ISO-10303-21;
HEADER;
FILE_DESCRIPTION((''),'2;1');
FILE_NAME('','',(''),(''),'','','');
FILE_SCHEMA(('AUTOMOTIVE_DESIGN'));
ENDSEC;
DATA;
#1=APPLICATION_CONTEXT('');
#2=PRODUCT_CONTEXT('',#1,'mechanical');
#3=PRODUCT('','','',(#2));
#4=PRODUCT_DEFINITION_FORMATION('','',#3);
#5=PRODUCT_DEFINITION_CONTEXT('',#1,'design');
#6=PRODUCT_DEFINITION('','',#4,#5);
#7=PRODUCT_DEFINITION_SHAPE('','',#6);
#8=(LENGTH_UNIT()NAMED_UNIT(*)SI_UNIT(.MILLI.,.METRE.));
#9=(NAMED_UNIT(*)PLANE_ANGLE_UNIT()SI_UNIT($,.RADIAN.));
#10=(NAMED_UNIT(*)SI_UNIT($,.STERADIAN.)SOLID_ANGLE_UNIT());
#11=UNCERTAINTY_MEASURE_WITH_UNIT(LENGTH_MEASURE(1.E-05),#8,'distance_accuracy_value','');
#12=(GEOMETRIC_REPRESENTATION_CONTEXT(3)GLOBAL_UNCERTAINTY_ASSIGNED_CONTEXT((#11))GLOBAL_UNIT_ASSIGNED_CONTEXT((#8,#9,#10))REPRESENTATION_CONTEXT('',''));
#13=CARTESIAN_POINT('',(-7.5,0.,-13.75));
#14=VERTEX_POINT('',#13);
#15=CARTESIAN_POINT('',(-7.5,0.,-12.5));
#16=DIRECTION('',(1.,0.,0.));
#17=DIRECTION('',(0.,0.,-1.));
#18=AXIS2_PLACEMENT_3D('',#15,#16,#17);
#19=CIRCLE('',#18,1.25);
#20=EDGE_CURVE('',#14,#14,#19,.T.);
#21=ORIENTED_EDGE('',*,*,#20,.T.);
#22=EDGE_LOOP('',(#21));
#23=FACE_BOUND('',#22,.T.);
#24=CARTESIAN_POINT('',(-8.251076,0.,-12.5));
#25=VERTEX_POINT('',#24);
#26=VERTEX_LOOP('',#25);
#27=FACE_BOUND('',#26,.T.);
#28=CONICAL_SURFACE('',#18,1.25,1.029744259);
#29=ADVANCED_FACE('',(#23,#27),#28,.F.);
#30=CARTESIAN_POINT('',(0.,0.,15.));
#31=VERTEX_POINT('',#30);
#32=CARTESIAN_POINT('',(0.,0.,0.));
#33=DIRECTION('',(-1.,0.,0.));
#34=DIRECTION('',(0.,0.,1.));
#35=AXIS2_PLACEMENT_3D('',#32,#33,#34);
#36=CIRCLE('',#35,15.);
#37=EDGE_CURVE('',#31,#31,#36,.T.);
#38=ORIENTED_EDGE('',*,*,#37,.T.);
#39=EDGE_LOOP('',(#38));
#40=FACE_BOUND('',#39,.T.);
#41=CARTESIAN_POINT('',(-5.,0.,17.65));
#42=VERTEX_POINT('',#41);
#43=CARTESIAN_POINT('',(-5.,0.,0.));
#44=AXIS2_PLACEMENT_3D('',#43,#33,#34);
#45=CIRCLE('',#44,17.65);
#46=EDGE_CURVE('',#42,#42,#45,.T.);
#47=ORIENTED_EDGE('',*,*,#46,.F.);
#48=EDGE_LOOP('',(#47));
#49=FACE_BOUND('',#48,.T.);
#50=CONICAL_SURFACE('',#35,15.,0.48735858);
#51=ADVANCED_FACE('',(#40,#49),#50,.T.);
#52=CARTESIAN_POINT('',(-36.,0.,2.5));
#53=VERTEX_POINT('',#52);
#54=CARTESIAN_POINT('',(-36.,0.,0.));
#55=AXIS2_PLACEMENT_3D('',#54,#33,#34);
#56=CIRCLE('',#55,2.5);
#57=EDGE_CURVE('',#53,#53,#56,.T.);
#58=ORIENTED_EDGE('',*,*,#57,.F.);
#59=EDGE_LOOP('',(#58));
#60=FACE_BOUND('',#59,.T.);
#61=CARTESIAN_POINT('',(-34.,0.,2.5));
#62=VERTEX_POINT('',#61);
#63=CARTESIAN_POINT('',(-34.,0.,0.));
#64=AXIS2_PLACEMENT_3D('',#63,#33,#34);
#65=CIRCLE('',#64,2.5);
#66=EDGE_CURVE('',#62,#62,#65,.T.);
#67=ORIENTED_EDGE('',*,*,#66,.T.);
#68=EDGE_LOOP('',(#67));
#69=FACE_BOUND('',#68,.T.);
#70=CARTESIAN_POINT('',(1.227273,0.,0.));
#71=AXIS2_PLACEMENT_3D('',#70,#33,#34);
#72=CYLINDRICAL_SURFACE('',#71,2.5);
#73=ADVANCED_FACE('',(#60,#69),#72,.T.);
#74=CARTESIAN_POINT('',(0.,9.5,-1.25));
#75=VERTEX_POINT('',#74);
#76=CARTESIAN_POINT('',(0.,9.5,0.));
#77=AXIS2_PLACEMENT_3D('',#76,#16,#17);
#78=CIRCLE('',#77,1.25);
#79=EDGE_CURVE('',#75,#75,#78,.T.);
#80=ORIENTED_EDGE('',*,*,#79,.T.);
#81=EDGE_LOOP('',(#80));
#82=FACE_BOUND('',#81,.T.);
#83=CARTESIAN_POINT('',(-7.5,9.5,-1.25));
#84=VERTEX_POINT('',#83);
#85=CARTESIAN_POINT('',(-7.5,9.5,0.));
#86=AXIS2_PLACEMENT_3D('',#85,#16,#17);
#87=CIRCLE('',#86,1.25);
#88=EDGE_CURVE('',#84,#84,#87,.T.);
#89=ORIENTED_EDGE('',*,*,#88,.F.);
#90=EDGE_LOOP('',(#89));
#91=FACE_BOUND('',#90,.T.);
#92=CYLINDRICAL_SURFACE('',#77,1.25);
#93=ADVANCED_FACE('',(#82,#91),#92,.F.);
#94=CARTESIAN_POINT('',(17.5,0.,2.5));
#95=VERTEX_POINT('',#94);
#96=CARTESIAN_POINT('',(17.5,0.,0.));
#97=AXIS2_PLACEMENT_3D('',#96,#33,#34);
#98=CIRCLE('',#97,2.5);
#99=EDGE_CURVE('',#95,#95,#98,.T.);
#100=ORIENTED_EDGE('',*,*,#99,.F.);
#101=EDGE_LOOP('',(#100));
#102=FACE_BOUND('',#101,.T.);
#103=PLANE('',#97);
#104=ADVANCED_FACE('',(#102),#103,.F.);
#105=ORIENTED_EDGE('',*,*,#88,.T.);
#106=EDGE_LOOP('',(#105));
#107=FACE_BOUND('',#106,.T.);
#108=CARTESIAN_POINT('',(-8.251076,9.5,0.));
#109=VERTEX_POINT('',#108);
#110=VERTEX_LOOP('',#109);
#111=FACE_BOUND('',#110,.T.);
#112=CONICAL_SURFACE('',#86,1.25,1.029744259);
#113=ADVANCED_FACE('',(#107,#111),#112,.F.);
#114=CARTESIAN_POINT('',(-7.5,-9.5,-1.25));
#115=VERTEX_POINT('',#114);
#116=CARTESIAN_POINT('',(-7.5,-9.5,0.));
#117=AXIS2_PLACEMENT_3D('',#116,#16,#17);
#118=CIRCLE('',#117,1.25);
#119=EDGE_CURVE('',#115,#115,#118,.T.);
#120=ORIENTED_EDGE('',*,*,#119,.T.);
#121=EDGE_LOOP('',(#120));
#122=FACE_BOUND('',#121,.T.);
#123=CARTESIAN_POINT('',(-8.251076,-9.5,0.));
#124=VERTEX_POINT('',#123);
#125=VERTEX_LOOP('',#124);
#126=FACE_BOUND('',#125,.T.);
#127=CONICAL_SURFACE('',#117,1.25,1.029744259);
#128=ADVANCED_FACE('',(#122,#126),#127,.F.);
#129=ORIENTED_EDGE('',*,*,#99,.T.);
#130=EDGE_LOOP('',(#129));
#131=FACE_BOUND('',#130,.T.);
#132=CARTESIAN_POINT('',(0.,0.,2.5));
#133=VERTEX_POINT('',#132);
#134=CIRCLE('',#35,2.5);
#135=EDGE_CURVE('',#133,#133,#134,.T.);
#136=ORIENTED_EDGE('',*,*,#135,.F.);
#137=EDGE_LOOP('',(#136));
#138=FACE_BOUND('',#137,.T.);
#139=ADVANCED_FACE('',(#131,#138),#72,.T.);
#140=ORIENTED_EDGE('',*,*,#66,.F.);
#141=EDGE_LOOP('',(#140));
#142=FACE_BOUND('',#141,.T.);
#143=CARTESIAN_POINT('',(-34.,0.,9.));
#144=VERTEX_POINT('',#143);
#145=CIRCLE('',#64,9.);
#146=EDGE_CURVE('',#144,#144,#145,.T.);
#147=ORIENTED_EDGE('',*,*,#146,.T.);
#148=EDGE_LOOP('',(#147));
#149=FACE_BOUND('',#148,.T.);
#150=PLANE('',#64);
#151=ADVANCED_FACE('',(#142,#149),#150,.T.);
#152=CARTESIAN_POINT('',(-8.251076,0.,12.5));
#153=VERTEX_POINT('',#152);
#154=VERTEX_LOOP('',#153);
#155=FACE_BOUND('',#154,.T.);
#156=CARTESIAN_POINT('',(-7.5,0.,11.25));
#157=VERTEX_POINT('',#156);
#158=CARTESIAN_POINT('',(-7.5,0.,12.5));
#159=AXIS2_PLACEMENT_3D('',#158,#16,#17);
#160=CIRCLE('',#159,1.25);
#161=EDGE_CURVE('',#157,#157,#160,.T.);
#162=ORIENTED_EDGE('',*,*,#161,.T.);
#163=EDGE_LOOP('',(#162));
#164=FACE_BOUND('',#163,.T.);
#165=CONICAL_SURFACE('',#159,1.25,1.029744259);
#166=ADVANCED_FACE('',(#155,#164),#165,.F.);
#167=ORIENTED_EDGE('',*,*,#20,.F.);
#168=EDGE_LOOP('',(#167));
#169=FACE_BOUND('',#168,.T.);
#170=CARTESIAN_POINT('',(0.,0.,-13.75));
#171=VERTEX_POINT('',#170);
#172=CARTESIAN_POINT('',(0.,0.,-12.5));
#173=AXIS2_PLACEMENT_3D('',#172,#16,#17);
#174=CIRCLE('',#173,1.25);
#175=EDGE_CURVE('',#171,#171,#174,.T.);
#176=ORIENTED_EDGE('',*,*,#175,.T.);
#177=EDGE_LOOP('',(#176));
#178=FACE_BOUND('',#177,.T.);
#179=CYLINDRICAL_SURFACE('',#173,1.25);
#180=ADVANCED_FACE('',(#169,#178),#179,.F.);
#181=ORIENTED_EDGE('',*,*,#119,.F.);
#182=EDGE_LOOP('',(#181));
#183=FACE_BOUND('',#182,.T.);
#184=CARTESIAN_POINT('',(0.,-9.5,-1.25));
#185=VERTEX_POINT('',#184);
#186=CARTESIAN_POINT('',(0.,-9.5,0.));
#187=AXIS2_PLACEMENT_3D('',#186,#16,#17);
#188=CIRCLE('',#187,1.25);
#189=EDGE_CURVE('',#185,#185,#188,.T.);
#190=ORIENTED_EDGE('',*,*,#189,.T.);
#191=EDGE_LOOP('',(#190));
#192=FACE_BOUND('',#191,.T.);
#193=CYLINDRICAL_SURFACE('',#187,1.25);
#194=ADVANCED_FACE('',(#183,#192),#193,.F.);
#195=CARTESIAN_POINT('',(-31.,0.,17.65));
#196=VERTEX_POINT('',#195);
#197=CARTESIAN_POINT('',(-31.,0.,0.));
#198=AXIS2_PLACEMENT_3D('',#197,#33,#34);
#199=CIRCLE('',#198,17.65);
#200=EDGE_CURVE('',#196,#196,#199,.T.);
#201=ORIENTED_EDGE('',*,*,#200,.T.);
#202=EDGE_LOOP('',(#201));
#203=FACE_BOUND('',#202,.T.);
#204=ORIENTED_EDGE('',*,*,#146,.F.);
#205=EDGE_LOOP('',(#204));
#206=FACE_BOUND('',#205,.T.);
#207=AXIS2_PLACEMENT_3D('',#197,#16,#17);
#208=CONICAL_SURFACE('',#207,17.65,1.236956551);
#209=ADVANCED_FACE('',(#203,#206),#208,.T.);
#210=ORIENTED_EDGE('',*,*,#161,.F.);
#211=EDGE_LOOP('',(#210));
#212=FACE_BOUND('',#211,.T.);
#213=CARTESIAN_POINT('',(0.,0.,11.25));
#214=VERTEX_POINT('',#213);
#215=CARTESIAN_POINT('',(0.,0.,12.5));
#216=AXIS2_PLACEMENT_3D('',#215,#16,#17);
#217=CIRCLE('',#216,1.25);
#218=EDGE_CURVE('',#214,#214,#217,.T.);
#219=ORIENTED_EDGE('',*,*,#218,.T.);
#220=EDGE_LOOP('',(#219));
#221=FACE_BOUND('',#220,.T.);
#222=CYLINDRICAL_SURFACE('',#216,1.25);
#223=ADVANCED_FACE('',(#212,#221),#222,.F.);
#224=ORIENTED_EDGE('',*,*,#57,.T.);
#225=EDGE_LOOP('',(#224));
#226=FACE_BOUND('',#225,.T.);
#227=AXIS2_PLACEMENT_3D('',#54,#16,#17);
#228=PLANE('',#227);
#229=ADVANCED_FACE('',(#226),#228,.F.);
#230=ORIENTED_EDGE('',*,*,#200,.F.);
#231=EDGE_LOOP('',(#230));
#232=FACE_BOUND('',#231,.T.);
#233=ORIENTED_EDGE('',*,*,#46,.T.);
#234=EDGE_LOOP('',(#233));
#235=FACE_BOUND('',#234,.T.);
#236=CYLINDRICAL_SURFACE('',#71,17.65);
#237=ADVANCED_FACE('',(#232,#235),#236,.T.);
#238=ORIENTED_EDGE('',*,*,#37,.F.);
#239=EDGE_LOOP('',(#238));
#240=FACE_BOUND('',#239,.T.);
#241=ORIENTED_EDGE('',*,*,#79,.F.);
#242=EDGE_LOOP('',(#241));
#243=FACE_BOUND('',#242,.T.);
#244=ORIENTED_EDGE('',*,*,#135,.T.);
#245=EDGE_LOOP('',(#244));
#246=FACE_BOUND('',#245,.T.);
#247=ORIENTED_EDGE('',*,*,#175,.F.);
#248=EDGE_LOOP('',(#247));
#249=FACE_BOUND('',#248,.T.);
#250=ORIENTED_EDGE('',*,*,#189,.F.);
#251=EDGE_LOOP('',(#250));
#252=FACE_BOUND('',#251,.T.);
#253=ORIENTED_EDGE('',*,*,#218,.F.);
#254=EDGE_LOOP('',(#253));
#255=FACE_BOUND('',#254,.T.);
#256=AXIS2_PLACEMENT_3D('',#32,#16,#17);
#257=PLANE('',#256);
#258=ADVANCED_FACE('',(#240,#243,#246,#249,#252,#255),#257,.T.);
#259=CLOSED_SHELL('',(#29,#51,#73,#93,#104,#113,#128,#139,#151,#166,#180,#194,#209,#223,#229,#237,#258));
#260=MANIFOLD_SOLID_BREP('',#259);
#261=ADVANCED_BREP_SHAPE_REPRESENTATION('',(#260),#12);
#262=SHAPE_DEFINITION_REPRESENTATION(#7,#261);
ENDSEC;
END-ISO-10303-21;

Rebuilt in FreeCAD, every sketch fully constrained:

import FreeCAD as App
import Part
import Sketcher


def add_polygon(sketch, points):
    """Adds a closed chain of lines whose ends are joined by coincident constraints."""
    first, n = sketch.GeometryCount, len(points)
    for a, b in zip(points, points[1:] + points[:1]):
        sketch.addGeometry(Part.LineSegment(App.Vector(*a, 0), App.Vector(*b, 0)), False)
    for i in range(n):
        sketch.addConstraint(Sketcher.Constraint("Coincident", first + i, 2, first + (i + 1) % n, 1))

doc = App.newDocument("Part")
body = doc.addObject("PartDesign::Body", "Body")

# Sketch on XY plane
sketch1 = body.newObject("Sketcher::SketchObject", "Sketch")
sketch1.AttachmentSupport = (doc.getObject("XY_Plane"), [""])
sketch1.MapMode = "FlatFace"
add_polygon(sketch1, [(-34, 0), (0, 0), (0, 15), (-5, 18), (-31, 18), (-34, 9)])  # lines 0-5
sketch1.addConstraint([
    Sketcher.Constraint("Horizontal", 0),
    Sketcher.Constraint("Vertical", 1),
    Sketcher.Constraint("Horizontal", 3),
    Sketcher.Constraint("Vertical", 5),
    Sketcher.Constraint("Coincident", 0, 2, -1, 1),
    Sketcher.Constraint("DistanceX", 0, 1, 0, 2, 34.0),
    Sketcher.Constraint("DistanceX", 3, 2, 3, 1, 26.0),
    Sketcher.Constraint("DistanceY", 1, 1, 1, 2, 15.0),
    Sketcher.Constraint("DistanceY", 5, 2, 5, 1, 9.0),
    Sketcher.Constraint("DistanceX", 2, 2, -1, 1, 5.0),
    Sketcher.Constraint("DistanceY", -1, 1, 2, 2, 17.65),
])
revolution = body.newObject("PartDesign::Revolution", "Revolution")
revolution.Profile = sketch1
revolution.ReferenceAxis = (sketch1, ["H_Axis"])
revolution.Angle = 360

# Sketch on XY plane
sketch2 = body.newObject("Sketcher::SketchObject", "Sketch001")
sketch2.AttachmentSupport = (doc.getObject("XY_Plane"), [""])
sketch2.MapMode = "FlatFace"
add_polygon(sketch2, [(0, 2.5), (0, 0), (17.5, 0), (17.5, 2.5)])  # lines 0-3
add_polygon(sketch2, [(-36, 2.5), (-36, 0), (-34, 0), (-34, 2.5)])  # lines 4-7
sketch2.addConstraint([
    Sketcher.Constraint("Vertical", 0),
    Sketcher.Constraint("Horizontal", 1),
    Sketcher.Constraint("Vertical", 2),
    Sketcher.Constraint("Horizontal", 3),
    Sketcher.Constraint("Vertical", 4),
    Sketcher.Constraint("Horizontal", 5),
    Sketcher.Constraint("Vertical", 6),
    Sketcher.Constraint("Horizontal", 7),
    Sketcher.Constraint("Coincident", 0, 2, -1, 1),
    Sketcher.Constraint("PointOnObject", 4, 2, -1),
    Sketcher.Constraint("Horizontal", 3, 2, 6, 2),
    Sketcher.Constraint("DistanceX", 5, 1, 5, 2, 2.0),
    Sketcher.Constraint("DistanceX", 1, 1, 1, 2, 17.5),
    Sketcher.Constraint("DistanceY", 0, 2, 0, 1, 2.5),
    Sketcher.Constraint("DistanceX", 4, 2, -1, 1, 36.0),
])
revolution2 = body.newObject("PartDesign::Revolution", "Revolution001")
revolution2.Profile = sketch2
revolution2.ReferenceAxis = (sketch2, ["H_Axis"])
revolution2.Angle = 360

# Sketch on YZ plane
sketch3 = body.newObject("Sketcher::SketchObject", "Sketch002")
sketch3.AttachmentSupport = (doc.getObject("YZ_Plane"), [""])
sketch3.MapMode = "FlatFace"
sketch3.addGeometry([
    Part.Circle(App.Vector(9.5, 0, 0), App.Vector(0, 0, 1), 1.2),
    Part.Circle(App.Vector(-9.5, 0, 0), App.Vector(0, 0, 1), 1.2),
    Part.Circle(App.Vector(0, 12.5, 0), App.Vector(0, 0, 1), 1.2),
    Part.Circle(App.Vector(0, -12.5, 0), App.Vector(0, 0, 1), 1.2),
], False)
sketch3.addConstraint([
    Sketcher.Constraint("Equal", 0, 1),
    Sketcher.Constraint("Equal", 1, 2),
    Sketcher.Constraint("Equal", 2, 3),
    Sketcher.Constraint("Symmetric", 0, 3, 1, 3, -1, 1),
    Sketcher.Constraint("Symmetric", 2, 3, 3, 3, -1, 1),
    Sketcher.Constraint("PointOnObject", 0, 3, -1),
    Sketcher.Constraint("PointOnObject", 2, 3, -2),
    Sketcher.Constraint("Diameter", 0, 2.5),
    Sketcher.Constraint("DistanceX", 1, 3, 0, 3, 19.0),
    Sketcher.Constraint("DistanceY", 3, 3, 2, 3, 25.0),
])
doc.recompute()
hole = body.newObject("PartDesign::Hole", "Hole")
hole.Profile = sketch3
hole.ThreadType = "None"
hole.Diameter = 2.5
hole.DepthType = "Dimension"
hole.Depth = 7.5
hole.DrillPoint = "Angled"
hole.DrillPointAngle = 118

doc.recompute()
